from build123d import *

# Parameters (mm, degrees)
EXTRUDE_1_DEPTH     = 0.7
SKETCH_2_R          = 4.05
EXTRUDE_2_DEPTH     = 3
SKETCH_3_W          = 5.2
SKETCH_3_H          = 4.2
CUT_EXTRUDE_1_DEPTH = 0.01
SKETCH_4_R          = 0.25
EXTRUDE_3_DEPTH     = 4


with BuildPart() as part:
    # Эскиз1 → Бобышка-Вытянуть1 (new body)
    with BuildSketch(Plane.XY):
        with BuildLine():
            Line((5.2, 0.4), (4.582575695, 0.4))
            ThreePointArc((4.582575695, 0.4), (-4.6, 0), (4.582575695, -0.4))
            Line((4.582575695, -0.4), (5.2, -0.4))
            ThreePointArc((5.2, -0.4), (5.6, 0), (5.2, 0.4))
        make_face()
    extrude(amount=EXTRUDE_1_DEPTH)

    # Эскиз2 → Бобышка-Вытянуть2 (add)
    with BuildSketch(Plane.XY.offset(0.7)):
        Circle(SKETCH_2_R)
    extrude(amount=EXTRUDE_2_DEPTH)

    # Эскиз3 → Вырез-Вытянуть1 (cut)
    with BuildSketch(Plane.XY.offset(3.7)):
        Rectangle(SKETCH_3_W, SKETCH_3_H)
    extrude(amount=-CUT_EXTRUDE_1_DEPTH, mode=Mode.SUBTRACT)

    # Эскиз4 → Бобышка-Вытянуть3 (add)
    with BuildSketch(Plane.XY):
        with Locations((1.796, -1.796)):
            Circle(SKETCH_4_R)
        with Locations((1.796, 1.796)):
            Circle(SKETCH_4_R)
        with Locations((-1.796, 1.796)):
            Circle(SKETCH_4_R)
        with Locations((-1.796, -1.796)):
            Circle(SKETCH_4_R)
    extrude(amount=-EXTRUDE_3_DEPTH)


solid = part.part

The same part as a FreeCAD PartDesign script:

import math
import FreeCAD as App
import Part
import Sketcher
Q = App.Units.Quantity

doc = App.newDocument("Part")
body = doc.addObject("PartDesign::Body", "Body")

sketch1 = body.newObject("Sketcher::SketchObject", "Sketch")
sketch1.AttachmentSupport = (doc.getObject("XY_Plane"), [""])
sketch1.MapMode = "FlatFace"
sketch1.addGeometry([
    Part.LineSegment(App.Vector(5.2, 0.4, 0), App.Vector(4.58, 0.4, 0)),
    Part.ArcOfCircle(Part.Circle(App.Vector(0, 0, 0), App.Vector(0, 0, 1), 4.6), math.radians(5), math.radians(355)),
    Part.LineSegment(App.Vector(4.58, -0.4, 0), App.Vector(5.2, -0.4, 0)),
    Part.ArcOfCircle(Part.Circle(App.Vector(5.2, 0, 0), App.Vector(0, 0, 1), 0.4), math.radians(-90), math.radians(90)),
], False)
sketch1.addConstraint([
    Sketcher.Constraint("Coincident", 0, 2, 1, 1),
    Sketcher.Constraint("Coincident", 1, 2, 2, 1),
    Sketcher.Constraint("Tangent", 2, 2, 3, 1),
    Sketcher.Constraint("Tangent", 3, 2, 0, 1),
    Sketcher.Constraint("Horizontal", 0),
    Sketcher.Constraint("Horizontal", 2),
    Sketcher.Constraint("Coincident", 1, 3, -1, 1),
    Sketcher.Constraint("PointOnObject", 3, 3, -1),
    Sketcher.Constraint("Radius", 1, Q("4.6 mm")),
    Sketcher.Constraint("Radius", 3, Q("0.4 mm")),
    Sketcher.Constraint("DistanceX", -1, 1, 3, 3, Q("5.2 mm")),
])
pad1 = body.newObject("PartDesign::Pad", "Pad")
pad1.Profile = sketch1
pad1.Length = 0.7

sketch2 = body.newObject("Sketcher::SketchObject", "Sketch001")
sketch2.AttachmentSupport = (doc.getObject("XY_Plane"), [""])
sketch2.MapMode = "FlatFace"
sketch2.AttachmentOffset = App.Placement(App.Vector(0, 0, 0.7), App.Rotation())
sketch2.addGeometry(Part.Circle(App.Vector(0, 0, 0), App.Vector(0, 0, 1), 4), False)
sketch2.addConstraint([
    Sketcher.Constraint("Coincident", 0, 3, -1, 1),
    Sketcher.Constraint("Diameter", 0, Q("8.1 mm")),
])
pad2 = body.newObject("PartDesign::Pad", "Pad001")
pad2.Profile = sketch2
pad2.Length = 3

sketch3 = body.newObject("Sketcher::SketchObject", "Sketch002")
sketch3.AttachmentSupport = (doc.getObject("XY_Plane"), [""])
sketch3.MapMode = "FlatFace"
sketch3.AttachmentOffset = App.Placement(App.Vector(0, 0, 3.7), App.Rotation())
sketch3.addGeometry([
    Part.LineSegment(App.Vector(-2.6, 2.1, 0), App.Vector(-2.6, -2.1, 0)),
    Part.LineSegment(App.Vector(-2.6, -2.1, 0), App.Vector(2.6, -2.1, 0)),
    Part.LineSegment(App.Vector(2.6, -2.1, 0), App.Vector(2.6, 2.1, 0)),
    Part.LineSegment(App.Vector(2.6, 2.1, 0), App.Vector(-2.6, 2.1, 0)),
], False)
sketch3.addConstraint([
    Sketcher.Constraint("Coincident", 0, 2, 1, 1),
    Sketcher.Constraint("Coincident", 1, 2, 2, 1),
    Sketcher.Constraint("Coincident", 2, 2, 3, 1),
    Sketcher.Constraint("Coincident", 3, 2, 0, 1),
    Sketcher.Constraint("Vertical", 0),
    Sketcher.Constraint("Horizontal", 1),
    Sketcher.Constraint("Vertical", 2),
    Sketcher.Constraint("Horizontal", 3),
    Sketcher.Constraint("Symmetric", 0, 2, 2, 2, -1, 1),
    Sketcher.Constraint("DistanceX", 1, 1, 1, 2, Q("5.2 mm")),
    Sketcher.Constraint("DistanceY", 0, 2, 0, 1, Q("4.2 mm")),
])
pocket1 = body.newObject("PartDesign::Pocket", "Pocket")
pocket1.Profile = sketch3
pocket1.Length = 0.01

sketch4 = body.newObject("Sketcher::SketchObject", "Sketch003")
sketch4.AttachmentSupport = (doc.getObject("XY_Plane"), [""])
sketch4.MapMode = "FlatFace"
sketch4.addGeometry([
    Part.Circle(App.Vector(1.8, -1.8, 0), App.Vector(0, 0, 1), 0.25),
    Part.Circle(App.Vector(1.8, 1.8, 0), App.Vector(0, 0, 1), 0.25),
    Part.Circle(App.Vector(-1.8, 1.8, 0), App.Vector(0, 0, 1), 0.25),
    Part.Circle(App.Vector(-1.8, -1.8, 0), App.Vector(0, 0, 1), 0.25),
], False)
sketch4.addConstraint([
    Sketcher.Constraint("Equal", 0, 1),
    Sketcher.Constraint("Equal", 1, 2),
    Sketcher.Constraint("Equal", 2, 3),
    Sketcher.Constraint("Symmetric", 0, 3, 2, 3, -1, 1),
    Sketcher.Constraint("Symmetric", 1, 3, 3, 3, -1, 1),
    Sketcher.Constraint("Symmetric", 1, 3, 2, 3, -2),
    Sketcher.Constraint("Diameter", 0, Q("0.5 mm")),
    Sketcher.Constraint("DistanceX", -1, 1, 0, 3, Q("1.796 mm")),
    Sketcher.Constraint("DistanceY", 0, 3, -1, 1, Q("1.796 mm")),
])
pad3 = body.newObject("PartDesign::Pad", "Pad002")
pad3.Profile = sketch4
pad3.Length = 4
pad3.Reversed = True

doc.recompute()
